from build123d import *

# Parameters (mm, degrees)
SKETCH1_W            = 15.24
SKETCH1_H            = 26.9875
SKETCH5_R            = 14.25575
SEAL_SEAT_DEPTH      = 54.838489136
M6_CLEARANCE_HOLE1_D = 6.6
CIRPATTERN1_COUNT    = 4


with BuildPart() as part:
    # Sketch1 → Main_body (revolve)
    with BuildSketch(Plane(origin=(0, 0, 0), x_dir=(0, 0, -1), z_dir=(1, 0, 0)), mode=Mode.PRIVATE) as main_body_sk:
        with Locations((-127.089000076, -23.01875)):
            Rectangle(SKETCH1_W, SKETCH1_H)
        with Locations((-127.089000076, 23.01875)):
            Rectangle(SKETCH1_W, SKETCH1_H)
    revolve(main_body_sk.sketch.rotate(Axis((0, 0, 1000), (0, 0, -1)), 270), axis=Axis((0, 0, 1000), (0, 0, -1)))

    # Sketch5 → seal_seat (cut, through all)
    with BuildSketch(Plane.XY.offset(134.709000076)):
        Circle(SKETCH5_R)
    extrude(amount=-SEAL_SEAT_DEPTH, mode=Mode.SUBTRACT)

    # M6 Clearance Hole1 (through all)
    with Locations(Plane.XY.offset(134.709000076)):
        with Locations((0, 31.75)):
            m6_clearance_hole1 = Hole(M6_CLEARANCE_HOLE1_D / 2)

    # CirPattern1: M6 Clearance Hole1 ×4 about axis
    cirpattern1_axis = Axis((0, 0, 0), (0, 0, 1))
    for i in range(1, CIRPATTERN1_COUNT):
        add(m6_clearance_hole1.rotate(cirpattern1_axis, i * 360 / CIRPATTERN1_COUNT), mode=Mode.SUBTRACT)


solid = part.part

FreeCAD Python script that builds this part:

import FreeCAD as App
import Part
import Sketcher
from FreeCAD import Vector
Q = App.Units.Quantity


def add_polygon(sketch, points):
    """Adds a closed chain of lines whose ends are joined by coincident constraints."""
    first, n = sketch.GeometryCount, len(points)
    for a, b in zip(points, points[1:] + points[:1]):
        sketch.addGeometry(Part.LineSegment(App.Vector(*a, 0), App.Vector(*b, 0)), False)
    for i in range(n):
        sketch.addConstraint(Sketcher.Constraint("Coincident", first + i, 2, first + (i + 1) % n, 1))

doc = App.newDocument("Part")
params = doc.addObject("Spreadsheet::Sheet", "Params")
for row, (alias, value) in enumerate([
    ("sketch1_height", "0.6 in"),
    ("sketch1_width", "1.0625 in"),
    ("revolution_angle", "360 deg"),
    ("hole_diameter", "6.6 mm"),
], start=1):
    params.set(f"A{row}", alias)
    params.set(f"B{row}", "=" + value)
    params.setAlias(f"B{row}", alias)

body = doc.addObject("PartDesign::Body", "Body")

# Sketch on YZ plane
sketch1 = body.newObject("Sketcher::SketchObject", "Sketch")
sketch1.AttachmentSupport = (doc.getObject("YZ_Plane"), [""])
sketch1.MapMode = "FlatFace"
add_polygon(sketch1, [(-10, 135), (-37, 135), (-37, 119), (-10, 119)])  # lines 0-3
add_polygon(sketch1, [(37, 135), (10, 135), (10, 119), (37, 119)])  # lines 4-7
sketch1.addConstraint([
    Sketcher.Constraint("Horizontal", 0),
    Sketcher.Constraint("Vertical", 1),
    Sketcher.Constraint("Horizontal", 2),
    Sketcher.Constraint("Vertical", 3),
    Sketcher.Constraint("Horizontal", 4),
    Sketcher.Constraint("Vertical", 5),
    Sketcher.Constraint("Horizontal", 6),
    Sketcher.Constraint("Vertical", 7),
    Sketcher.Constraint("Symmetric", 3, 2, 4, 2, -2),
    Sketcher.Constraint("Symmetric", 1, 2, 6, 2, -2),
    Sketcher.Constraint("DistanceY", 1, 2, 1, 1, Q("0.6 in")),
    Sketcher.Constraint("DistanceX", 0, 2, 0, 1, Q("1.0625 in")),
    Sketcher.Constraint("DistanceX", 3, 2, 4, 2, Q("0.75 in")),
    Sketcher.Constraint("DistanceY", -1, 1, 0, 2, Q("134.709 mm")),
])
sketch1.setExpression("Constraints[18]", "Params.sketch1_height")
sketch1.setExpression("Constraints[19]", "Params.sketch1_width")
revolution = body.newObject("PartDesign::Revolution", "Revolution")
revolution.Profile = sketch1
revolution.ReferenceAxis = (sketch1, ["V_Axis"])
revolution.setExpression("Angle", "Params.revolution_angle")

# Sketch on XY plane
sketch2 = body.newObject("Sketcher::SketchObject", "Sketch001")
sketch2.AttachmentSupport = (doc.getObject("XY_Plane"), [""])
sketch2.MapMode = "FlatFace"
sketch2.AttachmentOffset = App.Placement(Vector(0, 0, 134.709), App.Rotation())
sketch2.addGeometry(Part.Circle(Vector(0, 0, 0), Vector(0, 0, 1), 14), False)
sketch2.addConstraint([
    Sketcher.Constraint("Coincident", 0, 3, -1, 1),
    Sketcher.Constraint("Diameter", 0, Q("1.1225 in")),
])
pocket1 = body.newObject("PartDesign::Pocket", "Pocket")
pocket1.Profile = sketch2
pocket1.Type = "ThroughAll"

# Sketch on XY plane
sketch3 = body.newObject("Sketcher::SketchObject", "Sketch002")
sketch3.AttachmentSupport = (doc.getObject("XY_Plane"), [""])
sketch3.MapMode = "FlatFace"
sketch3.AttachmentOffset = App.Placement(Vector(0, 0, 134.709), App.Rotation())
sketch3.addGeometry(Part.Circle(Vector(0, 31.8, 0), Vector(0, 0, 1), 3.3), False)
sketch3.addConstraint([
    Sketcher.Constraint("PointOnObject", 0, 3, -2),
    Sketcher.Constraint("Diameter", 0, Q("6.6 mm")),
    Sketcher.Constraint("DistanceY", -1, 1, 0, 3, Q("1.25 in")),
])
doc.recompute()
hole = body.newObject("PartDesign::Hole", "Hole")
hole.Profile = sketch3
hole.ThreadType = "None"
hole.setExpression("Diameter", "Params.hole_diameter")
hole.DepthType = "ThroughAll"
doc.recompute()

polarpattern = body.newObject("PartDesign::PolarPattern", "PolarPattern")
polarpattern.Originals = [hole]
polarpattern.Axis = (doc.getObject("Z_Axis"), [""])
polarpattern.Angle = 360
polarpattern.Occurrences = 4
body.Tip = polarpattern

doc.recompute()
